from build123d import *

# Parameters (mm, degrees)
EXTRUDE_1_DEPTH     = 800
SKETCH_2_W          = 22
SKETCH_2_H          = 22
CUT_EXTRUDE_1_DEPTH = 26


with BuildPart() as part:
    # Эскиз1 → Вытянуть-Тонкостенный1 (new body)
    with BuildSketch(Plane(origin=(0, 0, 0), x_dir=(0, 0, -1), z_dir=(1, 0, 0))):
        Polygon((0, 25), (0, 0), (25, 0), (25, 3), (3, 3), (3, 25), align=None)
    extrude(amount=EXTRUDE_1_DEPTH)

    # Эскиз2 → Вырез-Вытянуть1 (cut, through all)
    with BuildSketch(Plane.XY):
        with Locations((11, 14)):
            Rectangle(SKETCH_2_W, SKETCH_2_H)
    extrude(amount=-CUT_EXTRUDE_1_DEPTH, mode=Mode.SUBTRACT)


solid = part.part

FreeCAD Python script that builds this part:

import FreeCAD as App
import Part
import Sketcher
from FreeCAD import Vector

doc = App.newDocument("Part")
body = doc.addObject("PartDesign::Body", "Body")

# Sketch on YZ plane
sketch1 = doc.addObject("Sketcher::SketchObject", "Sketch")
body.addObject(sketch1)
sketch1.AttachmentSupport = (doc.YZ_Plane, [""])
sketch1.MapMode = "FlatFace"
sketch1.addGeometry([
    Part.LineSegment(Vector(25, 0, 0), Vector(0, 0, 0)),  # 0
    Part.LineSegment(Vector(0, 0, 0), Vector(0, -25, 0)),  # 1
    Part.LineSegment(Vector(0, -25, 0), Vector(3, -25, 0)),  # 2
    Part.LineSegment(Vector(3, -25, 0), Vector(3, -3, 0)),  # 3
    Part.LineSegment(Vector(3, -3, 0), Vector(25, -3, 0)),  # 4
    Part.LineSegment(Vector(25, -3, 0), Vector(25, 0, 0)),  # 5
], False)
sketch1.addConstraint([
    Sketcher.Constraint("Coincident", 0, 2, 1, 1),
    Sketcher.Constraint("Coincident", 1, 2, 2, 1),
    Sketcher.Constraint("Coincident", 2, 2, 3, 1),
    Sketcher.Constraint("Coincident", 3, 2, 4, 1),
    Sketcher.Constraint("Coincident", 4, 2, 5, 1),
    Sketcher.Constraint("Coincident", 5, 2, 0, 1),
    Sketcher.Constraint("Horizontal", 0),
    Sketcher.Constraint("Vertical", 1),
    Sketcher.Constraint("Horizontal", 2),
    Sketcher.Constraint("Vertical", 3),
    Sketcher.Constraint("Horizontal", 4),
    Sketcher.Constraint("Vertical", 5),
    Sketcher.Constraint("Coincident", 0, 2, -1, 1),
    Sketcher.Constraint("Equal", 0, 1),
    Sketcher.Constraint("Equal", 4, 3),
    Sketcher.Constraint("DistanceX", 0, 2, 0, 1, 25.0),
    Sketcher.Constraint("DistanceX", 2, 1, 2, 2, 3.0),
])
pad1 = doc.addObject("PartDesign::Pad", "Pad")
body.addObject(pad1)
pad1.Profile = sketch1
pad1.Length = 800

# Sketch on XY plane
sketch2 = doc.addObject("Sketcher::SketchObject", "Sketch001")
body.addObject(sketch2)
sketch2.AttachmentSupport = (doc.XY_Plane, [""])
sketch2.MapMode = "FlatFace"
sketch2.addGeometry([
    Part.LineSegment(Vector(0, 25, 0), Vector(0, 3, 0)),
    Part.LineSegment(Vector(0, 3, 0), Vector(22, 3, 0)),
    Part.LineSegment(Vector(22, 3, 0), Vector(22, 25, 0)),
    Part.LineSegment(Vector(22, 25, 0), Vector(0, 25, 0)),
], False)
sketch2.addConstraint([
    Sketcher.Constraint("Coincident", 0, 2, 1, 1),
    Sketcher.Constraint("Coincident", 1, 2, 2, 1),
    Sketcher.Constraint("Coincident", 2, 2, 3, 1),
    Sketcher.Constraint("Coincident", 3, 2, 0, 1),
    Sketcher.Constraint("Vertical", 0),
    Sketcher.Constraint("Horizontal", 1),
    Sketcher.Constraint("Vertical", 2),
    Sketcher.Constraint("Horizontal", 3),
    Sketcher.Constraint("PointOnObject", 0, 2, -2),
    Sketcher.Constraint("Equal", 3, 0),
    Sketcher.Constraint("DistanceX", 1, 1, 1, 2, 22.0),
    Sketcher.Constraint("DistanceY", -1, 1, 0, 2, 3.0),
])
pocket1 = doc.addObject("PartDesign::Pocket", "Pocket")
body.addObject(pocket1)
pocket1.Profile = sketch2
pocket1.Type = "ThroughAll"

doc.recompute()
